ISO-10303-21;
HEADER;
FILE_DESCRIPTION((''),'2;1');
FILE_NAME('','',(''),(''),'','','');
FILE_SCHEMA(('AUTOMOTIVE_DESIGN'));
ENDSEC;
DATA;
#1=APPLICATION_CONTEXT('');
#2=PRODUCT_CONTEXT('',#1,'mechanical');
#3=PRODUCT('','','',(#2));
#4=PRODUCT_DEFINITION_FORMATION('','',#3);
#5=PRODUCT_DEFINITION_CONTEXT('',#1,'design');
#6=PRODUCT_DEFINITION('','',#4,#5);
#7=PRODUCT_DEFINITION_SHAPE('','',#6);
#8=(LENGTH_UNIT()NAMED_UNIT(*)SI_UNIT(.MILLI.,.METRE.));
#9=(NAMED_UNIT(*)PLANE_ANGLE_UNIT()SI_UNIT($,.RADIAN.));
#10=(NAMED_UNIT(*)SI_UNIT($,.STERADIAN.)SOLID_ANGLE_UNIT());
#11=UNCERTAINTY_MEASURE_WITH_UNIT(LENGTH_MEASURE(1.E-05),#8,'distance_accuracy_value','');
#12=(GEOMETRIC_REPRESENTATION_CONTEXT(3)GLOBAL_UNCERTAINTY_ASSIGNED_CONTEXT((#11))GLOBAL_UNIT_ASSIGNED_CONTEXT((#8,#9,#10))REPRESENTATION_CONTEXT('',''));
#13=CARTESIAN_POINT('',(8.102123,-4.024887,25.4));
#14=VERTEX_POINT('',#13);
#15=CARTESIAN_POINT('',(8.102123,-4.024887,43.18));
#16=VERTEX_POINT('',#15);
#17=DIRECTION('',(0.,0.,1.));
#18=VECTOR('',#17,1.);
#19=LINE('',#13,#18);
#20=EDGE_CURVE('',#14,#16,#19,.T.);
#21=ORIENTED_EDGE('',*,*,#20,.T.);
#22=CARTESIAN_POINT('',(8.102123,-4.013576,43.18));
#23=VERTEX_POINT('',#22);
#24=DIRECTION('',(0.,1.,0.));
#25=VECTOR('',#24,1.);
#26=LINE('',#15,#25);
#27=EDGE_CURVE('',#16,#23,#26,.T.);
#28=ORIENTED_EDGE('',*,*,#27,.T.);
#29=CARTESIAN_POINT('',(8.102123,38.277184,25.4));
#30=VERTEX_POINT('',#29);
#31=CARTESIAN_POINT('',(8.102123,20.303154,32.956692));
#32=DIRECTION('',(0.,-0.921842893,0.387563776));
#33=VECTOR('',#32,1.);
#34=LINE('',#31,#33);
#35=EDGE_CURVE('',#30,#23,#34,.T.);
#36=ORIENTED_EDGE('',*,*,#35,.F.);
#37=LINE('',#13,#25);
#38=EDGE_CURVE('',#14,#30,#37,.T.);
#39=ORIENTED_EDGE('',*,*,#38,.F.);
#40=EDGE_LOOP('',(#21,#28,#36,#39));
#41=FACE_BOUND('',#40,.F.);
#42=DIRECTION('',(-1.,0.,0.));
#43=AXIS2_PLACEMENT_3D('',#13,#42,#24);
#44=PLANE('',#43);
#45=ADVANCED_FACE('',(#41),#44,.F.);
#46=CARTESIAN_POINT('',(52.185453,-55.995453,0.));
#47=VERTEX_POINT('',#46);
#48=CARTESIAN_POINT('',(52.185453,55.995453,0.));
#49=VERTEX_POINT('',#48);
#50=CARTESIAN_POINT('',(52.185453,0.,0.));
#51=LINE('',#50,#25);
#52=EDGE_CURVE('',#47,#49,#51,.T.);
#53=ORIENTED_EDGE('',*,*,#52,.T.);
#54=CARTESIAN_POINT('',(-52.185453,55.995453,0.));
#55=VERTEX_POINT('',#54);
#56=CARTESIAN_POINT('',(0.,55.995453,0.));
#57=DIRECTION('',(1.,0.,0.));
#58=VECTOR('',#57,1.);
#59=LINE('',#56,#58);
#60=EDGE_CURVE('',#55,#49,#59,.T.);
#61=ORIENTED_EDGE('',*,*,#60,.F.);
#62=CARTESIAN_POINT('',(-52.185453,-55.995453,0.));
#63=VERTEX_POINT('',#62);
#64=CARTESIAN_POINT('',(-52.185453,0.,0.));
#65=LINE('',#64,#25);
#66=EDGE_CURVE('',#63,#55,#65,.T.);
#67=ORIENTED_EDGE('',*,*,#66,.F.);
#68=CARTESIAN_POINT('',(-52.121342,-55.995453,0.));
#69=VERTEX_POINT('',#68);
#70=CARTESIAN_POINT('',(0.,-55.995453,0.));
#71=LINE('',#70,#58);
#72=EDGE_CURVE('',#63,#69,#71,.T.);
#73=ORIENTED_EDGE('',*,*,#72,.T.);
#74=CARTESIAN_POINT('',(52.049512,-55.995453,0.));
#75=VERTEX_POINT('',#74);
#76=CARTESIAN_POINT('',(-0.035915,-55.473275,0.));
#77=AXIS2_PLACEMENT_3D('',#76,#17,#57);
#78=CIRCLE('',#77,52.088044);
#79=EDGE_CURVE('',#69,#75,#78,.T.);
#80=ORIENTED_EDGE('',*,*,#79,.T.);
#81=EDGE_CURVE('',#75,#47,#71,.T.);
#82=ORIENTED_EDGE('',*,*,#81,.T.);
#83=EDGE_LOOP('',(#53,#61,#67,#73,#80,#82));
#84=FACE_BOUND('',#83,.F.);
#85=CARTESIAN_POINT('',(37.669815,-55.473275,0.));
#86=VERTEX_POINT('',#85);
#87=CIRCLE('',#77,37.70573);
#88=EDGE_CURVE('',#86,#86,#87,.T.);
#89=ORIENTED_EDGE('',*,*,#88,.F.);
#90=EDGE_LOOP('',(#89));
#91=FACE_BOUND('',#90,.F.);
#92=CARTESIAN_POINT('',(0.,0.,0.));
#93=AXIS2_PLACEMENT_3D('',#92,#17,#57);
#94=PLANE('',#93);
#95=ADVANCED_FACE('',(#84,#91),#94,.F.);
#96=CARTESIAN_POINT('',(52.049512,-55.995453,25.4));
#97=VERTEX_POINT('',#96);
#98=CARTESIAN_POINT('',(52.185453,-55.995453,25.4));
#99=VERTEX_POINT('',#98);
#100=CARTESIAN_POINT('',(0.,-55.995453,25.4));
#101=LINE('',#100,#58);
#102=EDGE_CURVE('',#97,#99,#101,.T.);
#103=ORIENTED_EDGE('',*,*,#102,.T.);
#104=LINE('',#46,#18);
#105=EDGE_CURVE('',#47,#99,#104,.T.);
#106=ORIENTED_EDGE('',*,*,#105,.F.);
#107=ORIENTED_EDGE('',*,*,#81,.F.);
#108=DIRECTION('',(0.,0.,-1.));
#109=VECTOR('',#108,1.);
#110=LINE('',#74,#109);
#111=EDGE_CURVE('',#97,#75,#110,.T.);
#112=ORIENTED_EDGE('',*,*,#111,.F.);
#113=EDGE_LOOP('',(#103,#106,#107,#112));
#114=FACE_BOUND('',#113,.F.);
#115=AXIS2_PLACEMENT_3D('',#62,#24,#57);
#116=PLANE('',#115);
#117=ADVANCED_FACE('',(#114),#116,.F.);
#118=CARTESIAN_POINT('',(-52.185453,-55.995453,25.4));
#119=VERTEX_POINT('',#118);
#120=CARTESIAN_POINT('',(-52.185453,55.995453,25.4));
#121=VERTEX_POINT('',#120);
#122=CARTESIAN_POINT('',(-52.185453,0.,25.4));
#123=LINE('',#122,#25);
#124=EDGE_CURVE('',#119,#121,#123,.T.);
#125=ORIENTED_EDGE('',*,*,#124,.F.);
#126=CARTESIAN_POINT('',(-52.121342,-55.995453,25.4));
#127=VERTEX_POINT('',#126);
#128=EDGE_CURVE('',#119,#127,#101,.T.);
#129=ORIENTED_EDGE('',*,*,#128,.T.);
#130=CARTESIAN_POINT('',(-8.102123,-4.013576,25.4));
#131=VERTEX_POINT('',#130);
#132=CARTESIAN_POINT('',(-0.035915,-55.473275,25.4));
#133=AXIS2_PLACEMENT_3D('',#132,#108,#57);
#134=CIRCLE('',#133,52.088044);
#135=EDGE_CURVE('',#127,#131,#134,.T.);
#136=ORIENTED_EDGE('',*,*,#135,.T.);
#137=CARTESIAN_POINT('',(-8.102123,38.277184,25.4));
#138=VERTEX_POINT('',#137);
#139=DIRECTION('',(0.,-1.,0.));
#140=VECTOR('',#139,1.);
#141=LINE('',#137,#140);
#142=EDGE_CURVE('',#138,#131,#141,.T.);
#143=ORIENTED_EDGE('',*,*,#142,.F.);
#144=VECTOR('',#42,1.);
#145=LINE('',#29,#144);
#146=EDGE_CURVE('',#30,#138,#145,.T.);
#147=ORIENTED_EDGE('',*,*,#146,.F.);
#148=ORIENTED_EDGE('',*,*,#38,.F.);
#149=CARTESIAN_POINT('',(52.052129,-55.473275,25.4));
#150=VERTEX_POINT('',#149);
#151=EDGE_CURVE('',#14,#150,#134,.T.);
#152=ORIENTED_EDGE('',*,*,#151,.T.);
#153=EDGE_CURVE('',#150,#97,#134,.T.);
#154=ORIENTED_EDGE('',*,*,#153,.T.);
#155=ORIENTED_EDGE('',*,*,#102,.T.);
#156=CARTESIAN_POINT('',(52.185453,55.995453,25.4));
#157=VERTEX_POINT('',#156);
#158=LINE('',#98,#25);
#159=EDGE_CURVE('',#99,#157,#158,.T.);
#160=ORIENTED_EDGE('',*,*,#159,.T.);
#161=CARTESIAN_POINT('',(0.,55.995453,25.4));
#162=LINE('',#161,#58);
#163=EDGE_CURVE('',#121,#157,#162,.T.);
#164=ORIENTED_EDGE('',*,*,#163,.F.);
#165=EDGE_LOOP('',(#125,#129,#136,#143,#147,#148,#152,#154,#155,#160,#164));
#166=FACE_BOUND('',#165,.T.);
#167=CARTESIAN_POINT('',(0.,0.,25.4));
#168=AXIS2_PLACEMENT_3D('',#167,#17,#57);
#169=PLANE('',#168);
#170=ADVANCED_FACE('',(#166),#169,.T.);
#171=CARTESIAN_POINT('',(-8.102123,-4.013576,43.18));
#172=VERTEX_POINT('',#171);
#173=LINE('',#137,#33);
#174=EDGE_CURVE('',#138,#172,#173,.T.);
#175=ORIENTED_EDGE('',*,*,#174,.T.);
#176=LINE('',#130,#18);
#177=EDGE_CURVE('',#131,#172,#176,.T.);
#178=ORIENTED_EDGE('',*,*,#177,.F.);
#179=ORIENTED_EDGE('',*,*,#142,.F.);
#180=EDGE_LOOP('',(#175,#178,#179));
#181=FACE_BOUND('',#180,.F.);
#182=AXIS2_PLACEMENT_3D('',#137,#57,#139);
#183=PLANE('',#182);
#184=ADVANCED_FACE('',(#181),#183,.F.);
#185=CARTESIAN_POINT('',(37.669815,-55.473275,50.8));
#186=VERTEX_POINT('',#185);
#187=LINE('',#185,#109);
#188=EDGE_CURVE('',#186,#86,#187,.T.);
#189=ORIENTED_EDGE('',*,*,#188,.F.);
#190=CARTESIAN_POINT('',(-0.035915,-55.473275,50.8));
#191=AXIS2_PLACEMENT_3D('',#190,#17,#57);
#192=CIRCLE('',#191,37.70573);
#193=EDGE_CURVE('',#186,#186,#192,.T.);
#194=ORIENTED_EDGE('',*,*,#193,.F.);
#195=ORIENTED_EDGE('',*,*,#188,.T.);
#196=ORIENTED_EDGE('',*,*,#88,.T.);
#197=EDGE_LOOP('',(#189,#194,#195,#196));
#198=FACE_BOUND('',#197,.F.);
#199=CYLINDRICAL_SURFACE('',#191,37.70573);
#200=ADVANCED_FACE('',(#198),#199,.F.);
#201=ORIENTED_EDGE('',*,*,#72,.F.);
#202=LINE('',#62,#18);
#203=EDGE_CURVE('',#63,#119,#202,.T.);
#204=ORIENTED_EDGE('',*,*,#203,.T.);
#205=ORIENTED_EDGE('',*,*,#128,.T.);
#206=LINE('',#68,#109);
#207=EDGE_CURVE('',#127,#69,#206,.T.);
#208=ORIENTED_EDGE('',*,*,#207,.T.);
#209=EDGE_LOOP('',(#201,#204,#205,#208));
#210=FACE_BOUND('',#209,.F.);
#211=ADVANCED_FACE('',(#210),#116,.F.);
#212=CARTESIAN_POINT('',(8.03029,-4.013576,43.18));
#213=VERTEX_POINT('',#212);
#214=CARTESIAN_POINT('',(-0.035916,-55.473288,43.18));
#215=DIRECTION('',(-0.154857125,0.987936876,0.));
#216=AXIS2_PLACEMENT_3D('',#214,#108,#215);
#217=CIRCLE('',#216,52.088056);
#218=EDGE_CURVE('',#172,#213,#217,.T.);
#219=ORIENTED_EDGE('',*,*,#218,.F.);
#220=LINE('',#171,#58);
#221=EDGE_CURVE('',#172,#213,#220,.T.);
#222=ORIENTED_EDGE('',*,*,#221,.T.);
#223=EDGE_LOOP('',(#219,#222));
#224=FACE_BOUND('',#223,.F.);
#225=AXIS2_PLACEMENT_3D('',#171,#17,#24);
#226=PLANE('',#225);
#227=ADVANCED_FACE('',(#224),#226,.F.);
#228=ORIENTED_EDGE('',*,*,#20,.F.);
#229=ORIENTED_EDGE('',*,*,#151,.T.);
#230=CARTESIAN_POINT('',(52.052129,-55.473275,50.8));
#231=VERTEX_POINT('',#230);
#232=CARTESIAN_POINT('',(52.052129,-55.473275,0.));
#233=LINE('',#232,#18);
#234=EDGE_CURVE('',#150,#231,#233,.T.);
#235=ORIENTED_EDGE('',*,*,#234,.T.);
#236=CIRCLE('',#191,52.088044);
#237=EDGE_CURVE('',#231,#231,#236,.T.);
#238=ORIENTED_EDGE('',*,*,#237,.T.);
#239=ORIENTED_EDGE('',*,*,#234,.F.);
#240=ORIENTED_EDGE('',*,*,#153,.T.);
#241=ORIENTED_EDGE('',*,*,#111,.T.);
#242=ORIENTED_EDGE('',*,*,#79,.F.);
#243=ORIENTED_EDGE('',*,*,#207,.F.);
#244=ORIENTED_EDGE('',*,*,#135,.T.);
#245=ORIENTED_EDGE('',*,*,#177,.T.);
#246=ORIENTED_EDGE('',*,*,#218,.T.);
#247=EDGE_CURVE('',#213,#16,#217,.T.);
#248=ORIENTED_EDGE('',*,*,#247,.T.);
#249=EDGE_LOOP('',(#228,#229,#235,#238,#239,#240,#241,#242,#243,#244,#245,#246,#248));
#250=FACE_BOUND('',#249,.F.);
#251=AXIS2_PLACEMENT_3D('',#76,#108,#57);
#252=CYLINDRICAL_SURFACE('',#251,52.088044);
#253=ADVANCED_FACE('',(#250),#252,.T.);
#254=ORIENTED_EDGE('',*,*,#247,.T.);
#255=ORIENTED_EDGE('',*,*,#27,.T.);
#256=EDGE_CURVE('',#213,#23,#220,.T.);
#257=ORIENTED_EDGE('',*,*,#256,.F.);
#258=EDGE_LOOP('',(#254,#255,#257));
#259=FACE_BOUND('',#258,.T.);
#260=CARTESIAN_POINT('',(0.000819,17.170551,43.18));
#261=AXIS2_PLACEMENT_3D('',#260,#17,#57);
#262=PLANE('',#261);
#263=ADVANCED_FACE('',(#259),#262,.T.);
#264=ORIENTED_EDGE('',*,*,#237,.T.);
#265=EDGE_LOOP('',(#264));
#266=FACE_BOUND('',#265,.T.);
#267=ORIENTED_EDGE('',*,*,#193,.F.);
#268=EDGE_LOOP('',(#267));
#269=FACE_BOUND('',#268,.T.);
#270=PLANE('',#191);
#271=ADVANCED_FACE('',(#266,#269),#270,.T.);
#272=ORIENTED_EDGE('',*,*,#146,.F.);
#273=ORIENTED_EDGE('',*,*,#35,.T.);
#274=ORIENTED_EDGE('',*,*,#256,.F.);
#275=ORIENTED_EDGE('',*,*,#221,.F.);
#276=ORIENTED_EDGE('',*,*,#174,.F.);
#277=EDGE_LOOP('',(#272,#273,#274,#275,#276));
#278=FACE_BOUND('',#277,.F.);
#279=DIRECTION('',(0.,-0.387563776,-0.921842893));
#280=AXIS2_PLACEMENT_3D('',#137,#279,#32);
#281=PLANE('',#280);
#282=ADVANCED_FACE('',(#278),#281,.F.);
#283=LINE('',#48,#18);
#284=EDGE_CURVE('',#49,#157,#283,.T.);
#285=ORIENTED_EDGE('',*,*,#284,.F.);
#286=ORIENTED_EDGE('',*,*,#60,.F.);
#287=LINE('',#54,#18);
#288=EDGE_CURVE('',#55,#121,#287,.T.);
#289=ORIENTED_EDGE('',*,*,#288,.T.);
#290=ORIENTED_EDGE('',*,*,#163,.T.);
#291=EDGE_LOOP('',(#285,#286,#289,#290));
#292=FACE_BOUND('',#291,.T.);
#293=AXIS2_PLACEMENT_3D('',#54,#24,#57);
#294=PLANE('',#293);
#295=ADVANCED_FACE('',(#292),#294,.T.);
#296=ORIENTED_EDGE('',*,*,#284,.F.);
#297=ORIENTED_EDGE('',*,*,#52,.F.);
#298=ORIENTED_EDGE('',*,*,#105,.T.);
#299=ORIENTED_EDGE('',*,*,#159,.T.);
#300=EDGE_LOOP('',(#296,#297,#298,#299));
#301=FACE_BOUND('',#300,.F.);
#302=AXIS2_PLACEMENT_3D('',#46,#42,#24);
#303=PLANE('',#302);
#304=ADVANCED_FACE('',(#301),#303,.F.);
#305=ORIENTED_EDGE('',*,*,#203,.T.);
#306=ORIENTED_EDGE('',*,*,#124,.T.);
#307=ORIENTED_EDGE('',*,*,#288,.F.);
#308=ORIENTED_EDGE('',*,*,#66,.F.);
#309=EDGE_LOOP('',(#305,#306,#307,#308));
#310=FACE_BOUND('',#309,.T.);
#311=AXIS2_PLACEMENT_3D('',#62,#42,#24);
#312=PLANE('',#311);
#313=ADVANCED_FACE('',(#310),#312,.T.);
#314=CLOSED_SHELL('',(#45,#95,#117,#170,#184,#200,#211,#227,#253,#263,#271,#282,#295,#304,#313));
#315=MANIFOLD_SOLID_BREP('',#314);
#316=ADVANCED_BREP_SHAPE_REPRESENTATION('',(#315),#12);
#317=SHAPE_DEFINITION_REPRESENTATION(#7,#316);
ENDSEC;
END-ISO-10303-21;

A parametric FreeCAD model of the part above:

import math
import FreeCAD as App
import Part
import Sketcher

V = App.Vector
Q = App.Units.Quantity


def add_polygon(sketch, points):
    """Adds a closed chain of lines whose ends are joined by coincident constraints."""
    first, n = sketch.GeometryCount, len(points)
    for a, b in zip(points, points[1:] + points[:1]):
        sketch.addGeometry(Part.LineSegment(App.Vector(*a, 0), App.Vector(*b, 0)), False)
    for i in range(n):
        sketch.addConstraint(Sketcher.Constraint("Coincident", first + i, 2, first + (i + 1) % n, 1))

doc = App.newDocument("Part")
body = doc.addObject("PartDesign::Body", "Body")

# Sketch on XY plane
sketch1 = doc.addObject("Sketcher::SketchObject", "Sketch")
body.addObject(sketch1)
sketch1.AttachmentSupport = (doc.XY_Plane, [""])
sketch1.MapMode = "FlatFace"
add_polygon(sketch1, [(-52, 56), (-52, -56), (52, -56), (52, 56)])  # lines 0-3
sketch1.addConstraint(Sketcher.Constraint("Vertical", 0))
sketch1.addConstraint(Sketcher.Constraint("Horizontal", 1))
sketch1.addConstraint(Sketcher.Constraint("Vertical", 2))
sketch1.addConstraint(Sketcher.Constraint("Horizontal", 3))
sketch1.addConstraint(Sketcher.Constraint("Symmetric", 0, 2, 2, 2, -1, 1))
sketch1.addConstraint(Sketcher.Constraint("DistanceX", 1, 1, 1, 2, Q("104.370906 mm")))
sketch1.addConstraint(Sketcher.Constraint("DistanceY", 0, 2, 0, 1, Q("111.990906 mm")))
pad1 = doc.addObject("PartDesign::Pad", "Pad")
body.addObject(pad1)
pad1.Profile = sketch1
pad1.Length = Q("1 in")

# Sketch on XY plane
sketch2 = doc.addObject("Sketcher::SketchObject", "Sketch001")
body.addObject(sketch2)
sketch2.AttachmentSupport = (doc.XY_Plane, [""])
sketch2.MapMode = "FlatFace"
sketch2.addGeometry(Part.Circle(V(0, -55, 0), V(0, 0, 1), 52), False)
sketch2.addConstraint(Sketcher.Constraint("Diameter", 0, Q("104.176088 mm")))
sketch2.addConstraint(Sketcher.Constraint("DistanceX", 0, 3, -1, 1, Q("0.035915 mm")))
sketch2.addConstraint(Sketcher.Constraint("DistanceY", 0, 3, -1, 1, Q("55.473275 mm")))
pad2 = doc.addObject("PartDesign::Pad", "Pad001")
body.addObject(pad2)
pad2.Profile = sketch2
pad2.Length = Q("2 in")

# Sketch on XY plane
sketch3 = doc.addObject("Sketcher::SketchObject", "Sketch002")
body.addObject(sketch3)
sketch3.AttachmentSupport = (doc.XY_Plane, [""])
sketch3.MapMode = "FlatFace"
sketch3.AttachmentOffset = App.Placement(V(0, 0, 2 * 25.4), App.Rotation())
sketch3.addGeometry(Part.Circle(V(0, -55, 0), V(0, 0, 1), 38), False)
sketch3.addConstraint(Sketcher.Constraint("Diameter", 0, Q("75.41146 mm")))
sketch3.addConstraint(Sketcher.Constraint("DistanceX", 0, 3, -1, 1, Q("0.035915 mm")))
sketch3.addConstraint(Sketcher.Constraint("DistanceY", 0, 3, -1, 1, Q("55.473275 mm")))
pocket1 = doc.addObject("PartDesign::Pocket", "Pocket")
body.addObject(pocket1)
pocket1.Profile = sketch3
pocket1.Type = "ThroughAll"

# Sketch on XY plane
sketch4 = doc.addObject("Sketcher::SketchObject", "Sketch003")
body.addObject(sketch4)
sketch4.AttachmentSupport = (doc.XY_Plane, [""])
sketch4.MapMode = "FlatFace"
sketch4.AttachmentOffset = App.Placement(V(0, 0, 1 * 25.4), App.Rotation())
sketch4.addGeometry(Part.ArcOfCircle(Part.Circle(V(0, -55, 0), V(0, 0, 1), 52), math.radians(81.01), math.radians(98.91)), False)
sketch4.addGeometry(Part.LineSegment(V(8, -4, 0), V(8, 38, 0)), False)
sketch4.addGeometry(Part.LineSegment(V(8, 38, 0), V(-8, 38, 0)), False)
sketch4.addGeometry(Part.LineSegment(V(-8, 38, 0), V(-8, -4, 0)), False)
sketch4.addConstraint(Sketcher.Constraint("Coincident", 0, 1, 1, 1))
sketch4.addConstraint(Sketcher.Constraint("Coincident", 1, 2, 2, 1))
sketch4.addConstraint(Sketcher.Constraint("Coincident", 2, 2, 3, 1))
sketch4.addConstraint(Sketcher.Constraint("Coincident", 3, 2, 0, 2))
sketch4.addConstraint(Sketcher.Constraint("Vertical", 1))
sketch4.addConstraint(Sketcher.Constraint("Horizontal", 2))
sketch4.addConstraint(Sketcher.Constraint("Vertical", 3))
sketch4.addConstraint(Sketcher.Constraint("Radius", 0, Q("52.088056 mm")))
sketch4.addConstraint(Sketcher.Constraint("DistanceY", 1, 1, 1, 2, Q("42.302071 mm")))
sketch4.addConstraint(Sketcher.Constraint("DistanceY", 3, 2, 3, 1, Q("42.29076 mm")))
sketch4.addConstraint(Sketcher.Constraint("DistanceY", 0, 3, 0, 1, Q("51.448401 mm")))
sketch4.addConstraint(Sketcher.Constraint("DistanceX", 0, 3, -1, 1, Q("0.035916 mm")))
sketch4.addConstraint(Sketcher.Constraint("DistanceY", 0, 3, -1, 1, Q("55.473288 mm")))
pad3 = doc.addObject("PartDesign::Pad", "Pad002")
body.addObject(pad3)
pad3.Profile = sketch4
pad3.Length = Q("0.7 in")

# Sketch on YZ plane
sketch5 = doc.addObject("Sketcher::SketchObject", "Sketch004")
body.addObject(sketch5)
sketch5.AttachmentSupport = (doc.YZ_Plane, [""])
sketch5.MapMode = "FlatFace"
sketch5.AttachmentOffset = App.Placement(V(0, 0, -8.102123), App.Rotation())
add_polygon(sketch5, [(38, 43), (38, 25), (-4, 43)])  # lines 0-2
sketch5.addConstraint(Sketcher.Constraint("Vertical", 0))
sketch5.addConstraint(Sketcher.Constraint("Horizontal", 2))
sketch5.addConstraint(Sketcher.Constraint("DistanceY", 0, 2, 0, 1, Q("0.7 in")))
sketch5.addConstraint(Sketcher.Constraint("DistanceY", -1, 1, 0, 2, Q("1 in")))
sketch5.addConstraint(Sketcher.Constraint("DistanceX", 2, 1, 2, 2, Q("42.29076 mm")))
sketch5.addConstraint(Sketcher.Constraint("DistanceX", -1, 1, 0, 2, Q("38.277184 mm")))
pocket2 = doc.addObject("PartDesign::Pocket", "Pocket001")
body.addObject(pocket2)
pocket2.Profile = sketch5
pocket2.Type = "ThroughAll"
pocket2.Reversed = True

doc.recompute()
